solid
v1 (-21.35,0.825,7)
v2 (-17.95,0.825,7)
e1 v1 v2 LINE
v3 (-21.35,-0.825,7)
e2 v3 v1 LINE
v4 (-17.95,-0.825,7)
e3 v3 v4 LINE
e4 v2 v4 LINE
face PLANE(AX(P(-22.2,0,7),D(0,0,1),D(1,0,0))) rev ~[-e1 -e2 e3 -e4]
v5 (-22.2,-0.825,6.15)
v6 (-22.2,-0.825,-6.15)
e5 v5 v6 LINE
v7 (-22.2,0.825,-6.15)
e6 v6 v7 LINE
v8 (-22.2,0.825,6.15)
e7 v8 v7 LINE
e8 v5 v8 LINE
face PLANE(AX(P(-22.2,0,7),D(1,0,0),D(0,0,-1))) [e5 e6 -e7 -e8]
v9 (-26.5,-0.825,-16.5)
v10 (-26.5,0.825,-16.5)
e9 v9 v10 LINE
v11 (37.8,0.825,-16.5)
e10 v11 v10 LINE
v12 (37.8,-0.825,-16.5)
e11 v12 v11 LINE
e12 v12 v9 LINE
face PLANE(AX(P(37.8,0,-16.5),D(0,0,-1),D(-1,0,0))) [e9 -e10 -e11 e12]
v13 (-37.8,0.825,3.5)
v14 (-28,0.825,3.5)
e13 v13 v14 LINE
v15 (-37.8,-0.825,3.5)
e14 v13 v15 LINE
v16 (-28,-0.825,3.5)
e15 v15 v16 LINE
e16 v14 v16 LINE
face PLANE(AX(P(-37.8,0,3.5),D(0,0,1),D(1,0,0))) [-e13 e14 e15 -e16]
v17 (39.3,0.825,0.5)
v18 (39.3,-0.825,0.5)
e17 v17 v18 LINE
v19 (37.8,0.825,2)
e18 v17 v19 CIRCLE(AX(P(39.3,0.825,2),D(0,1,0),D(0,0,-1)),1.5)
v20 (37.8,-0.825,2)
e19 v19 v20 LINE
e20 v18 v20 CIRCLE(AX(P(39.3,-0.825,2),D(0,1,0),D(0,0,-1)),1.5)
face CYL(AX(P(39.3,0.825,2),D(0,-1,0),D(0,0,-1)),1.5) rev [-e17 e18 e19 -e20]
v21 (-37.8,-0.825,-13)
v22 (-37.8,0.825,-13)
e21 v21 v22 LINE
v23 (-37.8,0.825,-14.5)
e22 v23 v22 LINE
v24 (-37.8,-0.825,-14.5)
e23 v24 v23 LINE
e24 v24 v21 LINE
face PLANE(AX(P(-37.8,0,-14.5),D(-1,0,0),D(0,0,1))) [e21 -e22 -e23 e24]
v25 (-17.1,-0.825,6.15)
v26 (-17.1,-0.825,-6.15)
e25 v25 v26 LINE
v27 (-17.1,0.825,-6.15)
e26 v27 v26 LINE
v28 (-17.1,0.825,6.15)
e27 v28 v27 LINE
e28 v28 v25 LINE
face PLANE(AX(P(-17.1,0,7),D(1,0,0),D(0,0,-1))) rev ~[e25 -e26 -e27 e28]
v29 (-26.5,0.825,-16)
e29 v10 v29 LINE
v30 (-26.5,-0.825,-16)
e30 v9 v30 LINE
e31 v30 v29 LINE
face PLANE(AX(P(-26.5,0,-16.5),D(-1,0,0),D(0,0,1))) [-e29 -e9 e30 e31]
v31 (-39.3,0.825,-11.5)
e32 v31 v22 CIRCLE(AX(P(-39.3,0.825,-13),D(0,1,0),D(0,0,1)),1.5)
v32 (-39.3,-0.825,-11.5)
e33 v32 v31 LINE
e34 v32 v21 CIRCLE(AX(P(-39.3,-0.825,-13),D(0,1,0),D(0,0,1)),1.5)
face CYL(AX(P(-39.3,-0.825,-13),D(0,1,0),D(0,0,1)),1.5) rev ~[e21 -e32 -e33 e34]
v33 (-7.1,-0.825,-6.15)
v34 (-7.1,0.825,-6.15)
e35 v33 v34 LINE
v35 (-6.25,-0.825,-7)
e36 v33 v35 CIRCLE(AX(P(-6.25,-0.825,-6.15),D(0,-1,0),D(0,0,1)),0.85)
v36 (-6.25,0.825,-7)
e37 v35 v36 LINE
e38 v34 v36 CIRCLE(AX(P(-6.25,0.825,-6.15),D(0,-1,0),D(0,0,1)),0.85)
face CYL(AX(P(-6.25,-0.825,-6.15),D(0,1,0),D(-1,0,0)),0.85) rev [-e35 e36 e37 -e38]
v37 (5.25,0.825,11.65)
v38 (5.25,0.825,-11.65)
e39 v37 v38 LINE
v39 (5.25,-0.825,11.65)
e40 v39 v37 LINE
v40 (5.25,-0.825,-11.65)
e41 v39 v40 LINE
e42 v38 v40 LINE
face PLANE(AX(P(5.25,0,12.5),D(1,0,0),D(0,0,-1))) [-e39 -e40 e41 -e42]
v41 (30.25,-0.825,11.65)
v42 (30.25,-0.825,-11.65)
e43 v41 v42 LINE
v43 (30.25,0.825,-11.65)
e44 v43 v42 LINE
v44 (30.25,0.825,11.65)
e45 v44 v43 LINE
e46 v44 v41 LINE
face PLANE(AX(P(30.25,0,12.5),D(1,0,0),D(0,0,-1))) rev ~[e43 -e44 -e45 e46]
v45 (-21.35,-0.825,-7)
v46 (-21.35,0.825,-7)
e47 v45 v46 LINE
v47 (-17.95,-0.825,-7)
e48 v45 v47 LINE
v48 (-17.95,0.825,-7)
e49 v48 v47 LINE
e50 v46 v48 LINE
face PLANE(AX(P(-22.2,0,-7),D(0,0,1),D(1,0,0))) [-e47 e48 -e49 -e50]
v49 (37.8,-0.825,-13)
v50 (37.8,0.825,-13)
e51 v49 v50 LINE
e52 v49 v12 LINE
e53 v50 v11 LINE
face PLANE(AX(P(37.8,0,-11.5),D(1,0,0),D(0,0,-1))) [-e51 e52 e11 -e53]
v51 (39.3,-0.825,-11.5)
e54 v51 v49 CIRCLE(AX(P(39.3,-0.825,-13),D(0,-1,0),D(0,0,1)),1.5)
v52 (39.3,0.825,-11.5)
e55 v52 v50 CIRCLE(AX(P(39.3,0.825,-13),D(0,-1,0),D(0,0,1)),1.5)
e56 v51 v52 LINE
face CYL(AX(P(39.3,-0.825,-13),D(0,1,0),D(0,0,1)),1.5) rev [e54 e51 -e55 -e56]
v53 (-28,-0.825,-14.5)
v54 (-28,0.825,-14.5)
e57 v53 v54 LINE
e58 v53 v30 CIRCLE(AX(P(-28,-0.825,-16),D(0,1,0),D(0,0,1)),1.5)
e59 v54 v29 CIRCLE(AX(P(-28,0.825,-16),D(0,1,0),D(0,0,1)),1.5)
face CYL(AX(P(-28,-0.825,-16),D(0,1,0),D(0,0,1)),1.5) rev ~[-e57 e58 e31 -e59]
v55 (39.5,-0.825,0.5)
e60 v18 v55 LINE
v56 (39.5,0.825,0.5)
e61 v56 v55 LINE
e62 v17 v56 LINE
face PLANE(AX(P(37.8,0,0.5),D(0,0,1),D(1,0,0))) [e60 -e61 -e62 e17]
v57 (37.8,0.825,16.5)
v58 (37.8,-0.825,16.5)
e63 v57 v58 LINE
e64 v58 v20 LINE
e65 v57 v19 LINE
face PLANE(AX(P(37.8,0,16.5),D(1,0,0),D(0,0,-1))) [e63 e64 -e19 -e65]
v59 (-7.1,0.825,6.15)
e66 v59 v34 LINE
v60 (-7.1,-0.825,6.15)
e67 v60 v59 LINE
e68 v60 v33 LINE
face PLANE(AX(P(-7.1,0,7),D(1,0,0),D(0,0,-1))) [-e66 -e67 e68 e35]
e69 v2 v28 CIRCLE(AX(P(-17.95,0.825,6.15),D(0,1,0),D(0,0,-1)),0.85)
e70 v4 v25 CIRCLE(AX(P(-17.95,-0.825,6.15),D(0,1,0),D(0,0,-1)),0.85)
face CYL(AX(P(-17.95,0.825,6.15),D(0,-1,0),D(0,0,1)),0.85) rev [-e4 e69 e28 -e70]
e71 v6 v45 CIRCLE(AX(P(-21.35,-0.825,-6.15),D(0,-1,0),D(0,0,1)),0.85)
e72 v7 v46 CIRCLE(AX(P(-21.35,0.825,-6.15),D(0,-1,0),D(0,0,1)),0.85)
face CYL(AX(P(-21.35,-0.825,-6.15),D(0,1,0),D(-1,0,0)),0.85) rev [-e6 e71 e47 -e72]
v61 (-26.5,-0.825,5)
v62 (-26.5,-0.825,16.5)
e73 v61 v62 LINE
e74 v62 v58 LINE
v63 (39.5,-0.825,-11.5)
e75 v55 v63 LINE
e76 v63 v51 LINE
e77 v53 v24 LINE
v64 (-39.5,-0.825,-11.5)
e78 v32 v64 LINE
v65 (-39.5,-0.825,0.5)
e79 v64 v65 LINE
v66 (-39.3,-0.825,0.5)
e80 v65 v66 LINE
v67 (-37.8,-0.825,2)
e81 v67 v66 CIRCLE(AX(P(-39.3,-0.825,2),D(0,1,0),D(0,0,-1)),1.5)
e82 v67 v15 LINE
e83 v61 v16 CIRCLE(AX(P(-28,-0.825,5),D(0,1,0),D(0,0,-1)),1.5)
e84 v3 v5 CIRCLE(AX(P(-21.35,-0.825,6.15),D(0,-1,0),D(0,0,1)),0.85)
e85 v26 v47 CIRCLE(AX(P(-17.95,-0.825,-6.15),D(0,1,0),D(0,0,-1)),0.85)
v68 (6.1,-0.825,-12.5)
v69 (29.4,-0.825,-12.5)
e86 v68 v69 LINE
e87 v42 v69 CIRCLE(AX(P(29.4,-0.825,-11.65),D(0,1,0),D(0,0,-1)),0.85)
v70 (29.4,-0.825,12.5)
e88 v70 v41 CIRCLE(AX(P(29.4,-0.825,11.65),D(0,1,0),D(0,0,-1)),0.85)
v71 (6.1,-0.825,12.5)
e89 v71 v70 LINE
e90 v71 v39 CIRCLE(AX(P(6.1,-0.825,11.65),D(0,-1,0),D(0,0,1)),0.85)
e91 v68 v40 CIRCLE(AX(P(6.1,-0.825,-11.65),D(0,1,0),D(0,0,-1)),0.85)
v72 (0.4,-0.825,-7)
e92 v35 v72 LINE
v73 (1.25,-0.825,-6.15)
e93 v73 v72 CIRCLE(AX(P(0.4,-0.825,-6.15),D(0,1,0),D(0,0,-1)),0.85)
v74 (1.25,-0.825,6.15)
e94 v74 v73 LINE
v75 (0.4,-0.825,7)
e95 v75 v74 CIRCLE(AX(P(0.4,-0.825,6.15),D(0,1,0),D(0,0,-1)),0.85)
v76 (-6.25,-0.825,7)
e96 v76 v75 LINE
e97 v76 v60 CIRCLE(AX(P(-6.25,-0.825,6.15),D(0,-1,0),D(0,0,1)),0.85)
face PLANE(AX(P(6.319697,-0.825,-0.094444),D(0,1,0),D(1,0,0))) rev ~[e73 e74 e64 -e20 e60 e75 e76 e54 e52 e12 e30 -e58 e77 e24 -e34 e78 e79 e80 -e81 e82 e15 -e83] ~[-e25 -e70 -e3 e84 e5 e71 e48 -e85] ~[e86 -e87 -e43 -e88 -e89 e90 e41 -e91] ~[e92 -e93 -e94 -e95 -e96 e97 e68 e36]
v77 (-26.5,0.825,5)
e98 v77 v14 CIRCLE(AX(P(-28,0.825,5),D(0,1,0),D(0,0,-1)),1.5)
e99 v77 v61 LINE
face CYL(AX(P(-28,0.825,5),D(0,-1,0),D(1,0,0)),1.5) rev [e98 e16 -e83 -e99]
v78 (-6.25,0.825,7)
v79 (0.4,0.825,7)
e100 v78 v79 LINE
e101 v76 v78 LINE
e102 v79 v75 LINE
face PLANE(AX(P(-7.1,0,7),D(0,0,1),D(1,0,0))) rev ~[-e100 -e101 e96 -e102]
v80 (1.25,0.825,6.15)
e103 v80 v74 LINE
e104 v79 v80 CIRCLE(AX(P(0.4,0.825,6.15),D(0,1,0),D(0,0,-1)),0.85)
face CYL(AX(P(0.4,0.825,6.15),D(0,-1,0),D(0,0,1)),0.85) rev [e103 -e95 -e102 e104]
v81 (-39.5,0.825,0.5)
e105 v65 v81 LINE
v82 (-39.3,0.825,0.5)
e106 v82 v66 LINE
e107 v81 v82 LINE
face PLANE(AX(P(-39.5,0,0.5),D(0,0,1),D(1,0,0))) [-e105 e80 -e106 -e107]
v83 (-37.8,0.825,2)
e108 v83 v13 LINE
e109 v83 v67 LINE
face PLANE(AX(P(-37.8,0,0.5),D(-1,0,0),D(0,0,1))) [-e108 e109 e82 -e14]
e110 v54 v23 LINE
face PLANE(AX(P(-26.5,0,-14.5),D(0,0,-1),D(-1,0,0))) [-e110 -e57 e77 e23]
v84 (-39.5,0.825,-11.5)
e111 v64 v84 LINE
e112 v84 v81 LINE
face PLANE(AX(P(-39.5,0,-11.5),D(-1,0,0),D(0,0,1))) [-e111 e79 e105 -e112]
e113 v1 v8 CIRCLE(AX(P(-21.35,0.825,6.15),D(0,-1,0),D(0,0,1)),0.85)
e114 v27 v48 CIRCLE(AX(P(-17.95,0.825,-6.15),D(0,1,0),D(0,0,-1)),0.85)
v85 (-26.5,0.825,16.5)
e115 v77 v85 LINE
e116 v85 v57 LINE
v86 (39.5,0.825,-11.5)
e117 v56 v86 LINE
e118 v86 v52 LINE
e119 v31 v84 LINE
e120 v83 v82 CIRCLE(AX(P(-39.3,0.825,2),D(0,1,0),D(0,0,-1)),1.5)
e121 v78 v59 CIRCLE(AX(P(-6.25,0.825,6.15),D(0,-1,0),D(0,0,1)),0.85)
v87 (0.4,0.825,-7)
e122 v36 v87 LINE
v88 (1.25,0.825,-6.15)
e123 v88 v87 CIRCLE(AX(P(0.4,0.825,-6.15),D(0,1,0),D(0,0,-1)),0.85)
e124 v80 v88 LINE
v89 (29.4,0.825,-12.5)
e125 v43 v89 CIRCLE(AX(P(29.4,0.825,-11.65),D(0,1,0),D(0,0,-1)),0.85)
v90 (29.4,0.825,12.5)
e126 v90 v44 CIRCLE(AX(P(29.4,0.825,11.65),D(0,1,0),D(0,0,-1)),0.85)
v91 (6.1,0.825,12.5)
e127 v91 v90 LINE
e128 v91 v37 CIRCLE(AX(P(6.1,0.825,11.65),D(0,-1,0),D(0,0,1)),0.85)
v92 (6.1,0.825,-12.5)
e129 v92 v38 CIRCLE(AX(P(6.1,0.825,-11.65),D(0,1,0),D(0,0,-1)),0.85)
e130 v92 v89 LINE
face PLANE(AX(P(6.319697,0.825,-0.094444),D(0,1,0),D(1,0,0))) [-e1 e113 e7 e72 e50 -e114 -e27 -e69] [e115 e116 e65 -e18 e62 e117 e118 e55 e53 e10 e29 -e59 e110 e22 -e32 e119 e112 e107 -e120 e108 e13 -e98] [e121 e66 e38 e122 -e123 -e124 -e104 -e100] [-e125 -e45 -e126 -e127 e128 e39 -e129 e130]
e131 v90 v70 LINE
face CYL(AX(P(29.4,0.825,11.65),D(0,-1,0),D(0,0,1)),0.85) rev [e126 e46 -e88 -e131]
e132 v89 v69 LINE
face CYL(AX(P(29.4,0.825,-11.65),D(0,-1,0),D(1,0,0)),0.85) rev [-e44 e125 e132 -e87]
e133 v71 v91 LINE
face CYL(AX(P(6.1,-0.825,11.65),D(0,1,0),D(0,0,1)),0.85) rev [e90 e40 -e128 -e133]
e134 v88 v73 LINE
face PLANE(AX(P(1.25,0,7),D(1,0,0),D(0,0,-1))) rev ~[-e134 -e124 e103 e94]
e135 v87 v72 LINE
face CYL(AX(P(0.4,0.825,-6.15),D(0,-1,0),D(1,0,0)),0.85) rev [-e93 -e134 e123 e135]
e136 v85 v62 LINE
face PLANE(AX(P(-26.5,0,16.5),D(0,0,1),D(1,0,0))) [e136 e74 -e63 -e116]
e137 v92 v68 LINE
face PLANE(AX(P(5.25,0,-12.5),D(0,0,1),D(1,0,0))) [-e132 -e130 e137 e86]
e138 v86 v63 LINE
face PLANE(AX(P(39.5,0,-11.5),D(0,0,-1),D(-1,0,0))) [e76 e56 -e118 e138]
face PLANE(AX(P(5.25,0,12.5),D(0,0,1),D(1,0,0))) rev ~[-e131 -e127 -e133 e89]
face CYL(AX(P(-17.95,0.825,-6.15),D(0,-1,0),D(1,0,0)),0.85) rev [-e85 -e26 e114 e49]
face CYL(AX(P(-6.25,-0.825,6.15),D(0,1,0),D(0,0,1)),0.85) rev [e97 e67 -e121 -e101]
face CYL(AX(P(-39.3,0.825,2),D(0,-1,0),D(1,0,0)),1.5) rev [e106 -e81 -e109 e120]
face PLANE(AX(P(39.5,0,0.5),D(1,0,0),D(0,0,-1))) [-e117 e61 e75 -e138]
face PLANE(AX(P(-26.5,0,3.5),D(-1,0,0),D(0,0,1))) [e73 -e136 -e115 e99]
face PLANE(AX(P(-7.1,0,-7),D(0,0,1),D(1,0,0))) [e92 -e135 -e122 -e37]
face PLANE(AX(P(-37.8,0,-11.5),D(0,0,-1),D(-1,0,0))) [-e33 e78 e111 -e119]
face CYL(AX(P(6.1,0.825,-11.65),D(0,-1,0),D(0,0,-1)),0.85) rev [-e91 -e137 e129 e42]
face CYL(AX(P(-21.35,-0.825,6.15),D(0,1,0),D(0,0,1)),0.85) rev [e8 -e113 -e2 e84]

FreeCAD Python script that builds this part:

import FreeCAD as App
import Part
import Sketcher

V = App.Vector
Q = App.Units.Quantity


def edges_at(feature, points):
    """Names of the edges that pass closest to the given points."""
    edges = feature.Shape.Edges
    near = lambda p: min(range(len(edges)), key=lambda i: edges[i].distToShape(Part.Vertex(*p))[0])
    return sorted({f"Edge{near(p) + 1}" for p in points})

doc = App.newDocument("Part")
params = doc.addObject("Spreadsheet::Sheet", "Params")
for row, (alias, value) in enumerate([
    ("sketch1_width", "25 mm"),
    ("sketch1_height", "5 mm"),
    ("sketch1_height2", "2 mm"),
    ("sketch1_height3", "12 mm"),
    ("sketch1_height4", "13 mm"),
    ("pad1_length", "1.65 mm"),
    ("fillet_radius", "1.5 mm"),
    ("fillet2_radius", "0.85 mm"),
], start=1):
    params.set(f"A{row}", alias)
    params.set(f"B{row}", "=" + value)
    params.setAlias(f"B{row}", alias)

body = doc.addObject("PartDesign::Body", "Body")

sketch1 = body.newObject("Sketcher::SketchObject", "Sketch")
sketch1.AttachmentSupport = (doc.getObject("XZ_Plane"), [""])
sketch1.MapMode = "FlatFace"
sketch1.addGeometry([
    Part.LineSegment(V(39.5, -11.5, 0), V(37.8, -11.5, 0)),
    Part.LineSegment(V(37.8, -11.5, 0), V(37.8, -16.5, 0)),
    Part.LineSegment(V(37.8, -16.5, 0), V(-26.5, -16.5, 0)),
    Part.LineSegment(V(-26.5, -16.5, 0), V(-26.5, -14.5, 0)),
    Part.LineSegment(V(-26.5, -14.5, 0), V(-37.8, -14.5, 0)),
    Part.LineSegment(V(-37.8, -14.5, 0), V(-37.8, -11.5, 0)),
    Part.LineSegment(V(-37.8, -11.5, 0), V(-39.5, -11.5, 0)),
    Part.LineSegment(V(-39.5, -11.5, 0), V(-39.5, 0.5, 0)),
    Part.LineSegment(V(-39.5, 0.5, 0), V(-37.8, 0.5, 0)),
    Part.LineSegment(V(-37.8, 0.5, 0), V(-37.8, 3.5, 0)),
    Part.LineSegment(V(-37.8, 3.5, 0), V(-26.5, 3.5, 0)),
    Part.LineSegment(V(-26.5, 3.5, 0), V(-26.5, 16.5, 0)),
    Part.LineSegment(V(-26.5, 16.5, 0), V(37.8, 16.5, 0)),
    Part.LineSegment(V(37.8, 16.5, 0), V(37.8, 0.5, 0)),
    Part.LineSegment(V(37.8, 0.5, 0), V(39.5, 0.5, 0)),
    Part.LineSegment(V(39.5, 0.5, 0), V(39.5, -11.5, 0)),
    Part.LineSegment(V(-17.1, 7, 0), V(-22.2, 7, 0)),
    Part.LineSegment(V(-22.2, 7, 0), V(-22.2, -7, 0)),
    Part.LineSegment(V(-22.2, -7, 0), V(-17.1, -7, 0)),
    Part.LineSegment(V(-17.1, -7, 0), V(-17.1, 7, 0)),
    Part.LineSegment(V(1.2, 7, 0), V(-7.1, 7, 0)),
    Part.LineSegment(V(-7.1, 7, 0), V(-7.1, -7, 0)),
    Part.LineSegment(V(-7.1, -7, 0), V(1.2, -7, 0)),
    Part.LineSegment(V(1.2, -7, 0), V(1.2, 7, 0)),
    Part.LineSegment(V(30.2, 12.5, 0), V(5.2, 12.5, 0)),
    Part.LineSegment(V(5.2, 12.5, 0), V(5.2, -12.5, 0)),
    Part.LineSegment(V(5.2, -12.5, 0), V(30.2, -12.5, 0)),
    Part.LineSegment(V(30.2, -12.5, 0), V(30.2, 12.5, 0)),
], False)
sketch1.addConstraint([
    Sketcher.Constraint("Coincident", 0, 2, 1, 1),
    Sketcher.Constraint("Coincident", 1, 2, 2, 1),
    Sketcher.Constraint("Coincident", 2, 2, 3, 1),
    Sketcher.Constraint("Coincident", 3, 2, 4, 1),
    Sketcher.Constraint("Coincident", 4, 2, 5, 1),
    Sketcher.Constraint("Coincident", 5, 2, 6, 1),
    Sketcher.Constraint("Coincident", 6, 2, 7, 1),
    Sketcher.Constraint("Coincident", 7, 2, 8, 1),
    Sketcher.Constraint("Coincident", 8, 2, 9, 1),
    Sketcher.Constraint("Coincident", 9, 2, 10, 1),
    Sketcher.Constraint("Coincident", 10, 2, 11, 1),
    Sketcher.Constraint("Coincident", 11, 2, 12, 1),
    Sketcher.Constraint("Coincident", 12, 2, 13, 1),
    Sketcher.Constraint("Coincident", 13, 2, 14, 1),
    Sketcher.Constraint("Coincident", 14, 2, 15, 1),
    Sketcher.Constraint("Coincident", 15, 2, 0, 1),
    Sketcher.Constraint("Coincident", 16, 2, 17, 1),
    Sketcher.Constraint("Coincident", 17, 2, 18, 1),
    Sketcher.Constraint("Coincident", 18, 2, 19, 1),
    Sketcher.Constraint("Coincident", 19, 2, 16, 1),
    Sketcher.Constraint("Coincident", 20, 2, 21, 1),
    Sketcher.Constraint("Coincident", 21, 2, 22, 1),
    Sketcher.Constraint("Coincident", 22, 2, 23, 1),
    Sketcher.Constraint("Coincident", 23, 2, 20, 1),
    Sketcher.Constraint("Coincident", 24, 2, 25, 1),
    Sketcher.Constraint("Coincident", 25, 2, 26, 1),
    Sketcher.Constraint("Coincident", 26, 2, 27, 1),
    Sketcher.Constraint("Coincident", 27, 2, 24, 1),
    Sketcher.Constraint("Horizontal", 0),
    Sketcher.Constraint("Vertical", 1),
    Sketcher.Constraint("Horizontal", 2),
    Sketcher.Constraint("Vertical", 3),
    Sketcher.Constraint("Horizontal", 4),
    Sketcher.Constraint("Vertical", 5),
    Sketcher.Constraint("Horizontal", 6),
    Sketcher.Constraint("Vertical", 7),
    Sketcher.Constraint("Horizontal", 8),
    Sketcher.Constraint("Vertical", 9),
    Sketcher.Constraint("Horizontal", 10),
    Sketcher.Constraint("Vertical", 11),
    Sketcher.Constraint("Horizontal", 12),
    Sketcher.Constraint("Vertical", 13),
    Sketcher.Constraint("Horizontal", 14),
    Sketcher.Constraint("Vertical", 15),
    Sketcher.Constraint("Horizontal", 16),
    Sketcher.Constraint("Vertical", 17),
    Sketcher.Constraint("Horizontal", 18),
    Sketcher.Constraint("Vertical", 19),
    Sketcher.Constraint("Horizontal", 20),
    Sketcher.Constraint("Vertical", 21),
    Sketcher.Constraint("Horizontal", 22),
    Sketcher.Constraint("Vertical", 23),
    Sketcher.Constraint("Horizontal", 24),
    Sketcher.Constraint("Vertical", 25),
    Sketcher.Constraint("Horizontal", 26),
    Sketcher.Constraint("Vertical", 27),
    Sketcher.Constraint("Symmetric", 0, 2, 5, 2, -2),
    Sketcher.Constraint("Symmetric", 8, 2, 13, 2, -2),
    Sketcher.Constraint("Symmetric", 2, 2, 11, 2, -1),
    Sketcher.Constraint("Horizontal", 19, 2, 20, 2),
    Sketcher.Constraint("Horizontal", 18, 2, 21, 2),
    Sketcher.Constraint("Vertical", 5, 2, 8, 2),
    Sketcher.Constraint("Equal", 0, 6),
    Sketcher.Constraint("Equal", 5, 9),
    Sketcher.Constraint("Equal", 26, 25),
    Sketcher.Constraint("DistanceX", 24, 2, 24, 1, Q("25 mm")),
    Sketcher.Constraint("DistanceY", 1, 2, 1, 1, Q("5 mm")),
    Sketcher.Constraint("DistanceY", 3, 1, 3, 2, Q("2 mm")),
    Sketcher.Constraint("DistanceY", 7, 1, 7, 2, Q("12 mm")),
    Sketcher.Constraint("DistanceY", 11, 1, 11, 2, Q("13 mm")),
    Sketcher.Constraint("DistanceY", 17, 2, 17, 1, Q("14 mm")),
    Sketcher.Constraint("DistanceX", 0, 2, 0, 1, Q("1.7 mm")),
    Sketcher.Constraint("DistanceX", 2, 2, 2, 1, Q("64.3 mm")),
    Sketcher.Constraint("DistanceX", 4, 2, 4, 1, Q("11.3 mm")),
    Sketcher.Constraint("DistanceX", 16, 2, 16, 1, Q("5.1 mm")),
    Sketcher.Constraint("DistanceY", -1, 1, 16, 2, Q("7 mm")),
    Sketcher.Constraint("DistanceX", 19, 2, 20, 2, Q("10 mm")),
    Sketcher.Constraint("DistanceX", 23, 2, 24, 2, Q("4 mm")),
    Sketcher.Constraint("DistanceY", 26, 2, 0, 2, Q("1 mm")),
    Sketcher.Constraint("DistanceX", 20, 2, 20, 1, Q("8.35 mm")),
    Sketcher.Constraint("DistanceX", 16, 2, -1, 1, Q("22.2 mm")),
])
sketch1.setExpression("Constraints[65]", "Params.sketch1_width")
sketch1.setExpression("Constraints[66]", "Params.sketch1_height")
sketch1.setExpression("Constraints[67]", "Params.sketch1_height2")
sketch1.setExpression("Constraints[68]", "Params.sketch1_height3")
sketch1.setExpression("Constraints[69]", "Params.sketch1_height4")
pad1 = body.newObject("PartDesign::Pad", "Pad")
pad1.Profile = sketch1
pad1.setExpression("Length", "Params.pad1_length")
pad1.Midplane = True
doc.recompute()

fillet = body.newObject("PartDesign::Fillet", "Fillet")
fillet.Base = (pad1, edges_at(pad1, [
    (37.8, 0, -11.5),
    (37.8, 0, 0.5),
    (-26.5, 0, 3.5),
    (-37.8, 0, 0.5),
    (-37.8, 0, -11.5),
    (-26.5, 0, -14.5),
]))
fillet.setExpression("Radius", "Params.fillet_radius")
doc.recompute()

fillet2 = body.newObject("PartDesign::Fillet", "Fillet001")
fillet2.Base = (fillet, edges_at(fillet, [
    (-7.1, 0, -7),
    (-7.1, 0, 7),
    (1.25, 0, 7),
    (1.25, 0, -7),
    (5.25, 0, -12.5),
    (5.25, 0, 12.5),
    (30.25, 0, 12.5),
    (30.25, 0, -12.5),
    (-17.1, 0, 7),
    (-17.1, 0, -7),
    (-22.2, 0, -7),
    (-22.2, 0, 7),
]))
fillet2.setExpression("Radius", "Params.fillet2_radius")

doc.recompute()
